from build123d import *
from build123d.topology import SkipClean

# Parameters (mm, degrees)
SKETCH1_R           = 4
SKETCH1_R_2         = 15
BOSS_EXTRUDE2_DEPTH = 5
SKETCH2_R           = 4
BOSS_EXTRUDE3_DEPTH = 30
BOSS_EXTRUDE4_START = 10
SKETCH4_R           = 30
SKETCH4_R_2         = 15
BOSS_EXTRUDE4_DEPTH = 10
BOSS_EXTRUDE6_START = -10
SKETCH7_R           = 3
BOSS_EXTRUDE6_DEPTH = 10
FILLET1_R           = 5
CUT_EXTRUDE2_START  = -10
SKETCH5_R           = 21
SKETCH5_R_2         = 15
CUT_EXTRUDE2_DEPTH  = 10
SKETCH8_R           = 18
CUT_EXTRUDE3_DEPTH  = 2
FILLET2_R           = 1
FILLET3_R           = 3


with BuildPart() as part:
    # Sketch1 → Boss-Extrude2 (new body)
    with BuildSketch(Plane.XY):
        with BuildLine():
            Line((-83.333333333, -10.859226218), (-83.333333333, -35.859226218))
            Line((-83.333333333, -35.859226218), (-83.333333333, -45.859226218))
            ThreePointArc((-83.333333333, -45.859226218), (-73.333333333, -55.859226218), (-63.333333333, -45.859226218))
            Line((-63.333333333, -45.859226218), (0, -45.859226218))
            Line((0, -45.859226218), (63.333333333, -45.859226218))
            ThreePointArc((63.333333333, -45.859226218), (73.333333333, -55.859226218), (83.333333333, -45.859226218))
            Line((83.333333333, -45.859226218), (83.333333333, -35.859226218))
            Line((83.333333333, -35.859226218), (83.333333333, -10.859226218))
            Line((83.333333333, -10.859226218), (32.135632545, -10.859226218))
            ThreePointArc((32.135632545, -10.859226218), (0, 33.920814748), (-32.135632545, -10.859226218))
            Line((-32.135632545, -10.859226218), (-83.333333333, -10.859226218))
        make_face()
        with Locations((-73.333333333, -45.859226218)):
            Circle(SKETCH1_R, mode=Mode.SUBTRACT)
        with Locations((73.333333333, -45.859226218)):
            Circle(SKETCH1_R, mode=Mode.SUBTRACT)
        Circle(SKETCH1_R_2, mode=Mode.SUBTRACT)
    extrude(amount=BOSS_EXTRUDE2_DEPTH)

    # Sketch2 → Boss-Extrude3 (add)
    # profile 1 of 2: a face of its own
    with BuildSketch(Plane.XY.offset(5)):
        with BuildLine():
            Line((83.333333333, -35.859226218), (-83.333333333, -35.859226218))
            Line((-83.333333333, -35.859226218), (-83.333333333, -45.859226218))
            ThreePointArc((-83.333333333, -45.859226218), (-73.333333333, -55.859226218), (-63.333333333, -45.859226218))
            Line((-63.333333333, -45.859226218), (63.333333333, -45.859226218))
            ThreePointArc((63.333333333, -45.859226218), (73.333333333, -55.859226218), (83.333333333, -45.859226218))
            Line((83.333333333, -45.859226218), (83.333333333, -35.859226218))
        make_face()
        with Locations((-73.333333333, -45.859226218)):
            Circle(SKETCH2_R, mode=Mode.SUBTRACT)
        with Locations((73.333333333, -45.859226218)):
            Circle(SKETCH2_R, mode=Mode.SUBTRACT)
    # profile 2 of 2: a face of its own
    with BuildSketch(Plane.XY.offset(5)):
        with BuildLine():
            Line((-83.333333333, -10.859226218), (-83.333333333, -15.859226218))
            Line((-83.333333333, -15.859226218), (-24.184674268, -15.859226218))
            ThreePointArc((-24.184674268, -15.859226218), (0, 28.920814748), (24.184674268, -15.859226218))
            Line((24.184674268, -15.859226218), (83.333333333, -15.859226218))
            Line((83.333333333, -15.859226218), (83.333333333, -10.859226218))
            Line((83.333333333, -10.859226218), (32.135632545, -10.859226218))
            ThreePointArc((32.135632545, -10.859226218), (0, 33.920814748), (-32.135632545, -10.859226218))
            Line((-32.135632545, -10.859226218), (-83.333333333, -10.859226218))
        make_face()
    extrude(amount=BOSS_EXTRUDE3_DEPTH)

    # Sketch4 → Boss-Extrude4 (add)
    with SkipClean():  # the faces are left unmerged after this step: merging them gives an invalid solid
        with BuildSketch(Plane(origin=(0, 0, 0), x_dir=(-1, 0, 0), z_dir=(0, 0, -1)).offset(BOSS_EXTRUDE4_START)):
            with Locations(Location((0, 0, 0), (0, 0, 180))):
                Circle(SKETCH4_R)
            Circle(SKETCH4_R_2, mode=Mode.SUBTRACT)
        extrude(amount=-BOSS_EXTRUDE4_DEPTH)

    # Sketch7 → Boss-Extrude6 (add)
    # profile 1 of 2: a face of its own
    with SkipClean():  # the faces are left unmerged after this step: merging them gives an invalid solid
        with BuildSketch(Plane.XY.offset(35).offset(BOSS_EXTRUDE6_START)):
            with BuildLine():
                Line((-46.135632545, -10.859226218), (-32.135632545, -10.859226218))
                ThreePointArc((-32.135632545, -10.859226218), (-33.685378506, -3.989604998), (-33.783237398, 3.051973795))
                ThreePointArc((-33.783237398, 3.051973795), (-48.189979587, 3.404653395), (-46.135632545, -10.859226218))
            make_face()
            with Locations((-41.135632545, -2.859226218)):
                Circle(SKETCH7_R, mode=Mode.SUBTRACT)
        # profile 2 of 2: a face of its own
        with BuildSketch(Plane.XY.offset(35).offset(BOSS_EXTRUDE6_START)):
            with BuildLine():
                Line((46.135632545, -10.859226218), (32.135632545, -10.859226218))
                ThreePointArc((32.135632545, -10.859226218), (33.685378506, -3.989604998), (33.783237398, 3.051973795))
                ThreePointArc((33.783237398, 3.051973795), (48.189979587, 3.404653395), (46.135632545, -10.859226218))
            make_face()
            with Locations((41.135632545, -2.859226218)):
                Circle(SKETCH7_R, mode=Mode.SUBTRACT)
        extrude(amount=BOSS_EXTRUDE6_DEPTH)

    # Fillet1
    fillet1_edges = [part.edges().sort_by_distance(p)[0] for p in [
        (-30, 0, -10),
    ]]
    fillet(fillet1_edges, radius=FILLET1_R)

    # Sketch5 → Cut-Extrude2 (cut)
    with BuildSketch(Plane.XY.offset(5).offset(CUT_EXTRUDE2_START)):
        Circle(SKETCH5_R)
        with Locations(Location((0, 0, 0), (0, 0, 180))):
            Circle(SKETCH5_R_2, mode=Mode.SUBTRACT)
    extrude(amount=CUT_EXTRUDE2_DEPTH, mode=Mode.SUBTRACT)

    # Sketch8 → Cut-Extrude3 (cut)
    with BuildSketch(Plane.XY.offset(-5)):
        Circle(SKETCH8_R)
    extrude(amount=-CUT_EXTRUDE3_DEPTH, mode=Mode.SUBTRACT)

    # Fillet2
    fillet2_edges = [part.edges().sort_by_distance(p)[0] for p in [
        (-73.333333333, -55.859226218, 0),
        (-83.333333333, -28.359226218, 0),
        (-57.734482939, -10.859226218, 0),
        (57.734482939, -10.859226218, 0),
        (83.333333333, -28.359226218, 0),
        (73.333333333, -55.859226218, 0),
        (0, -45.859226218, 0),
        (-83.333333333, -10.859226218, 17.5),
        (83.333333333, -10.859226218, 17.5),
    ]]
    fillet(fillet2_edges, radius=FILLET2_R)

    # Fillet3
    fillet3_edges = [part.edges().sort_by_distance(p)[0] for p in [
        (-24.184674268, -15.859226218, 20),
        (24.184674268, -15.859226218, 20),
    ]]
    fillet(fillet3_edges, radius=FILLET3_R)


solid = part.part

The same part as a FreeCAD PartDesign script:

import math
import FreeCAD as App
import Part
import Sketcher

V = App.Vector


def edges_at(feature, points):
    """Names of the edges that pass closest to the given points."""
    edges = feature.Shape.Edges
    near = lambda p: min(range(len(edges)), key=lambda i: edges[i].distToShape(Part.Vertex(*p))[0])
    return sorted({f"Edge{near(p) + 1}" for p in points})

doc = App.newDocument("Part")
params = doc.addObject("Spreadsheet::Sheet", "Params")
for row, (alias, value) in enumerate([
    ("sketch1_diameter", "8 mm"),
    ("sketch1_diameter2", "30 mm"),
    ("sketch1_radius", "10 mm"),
    ("sketch1_height", "35 mm"),
    ("pad1_length", "5 mm"),
    ("sketch2_diameter", "8 mm"),
    ("sketch2_radius", "10 mm"),
    ("sketch2_height", "10 mm"),
    ("sketch2_height2", "5 mm"),
    ("pad2_length", "30 mm"),
    ("sketch3_diameter", "60 mm"),
    ("sketch3_diameter2", "30 mm"),
    ("pad3_length", "10 mm"),
    ("sketch4_diameter", "6 mm"),
    ("sketch4_width", "14 mm"),
    ("pad4_length", "10 mm"),
    ("fillet_radius", "5 mm"),
    ("sketch5_diameter", "42 mm"),
    ("sketch5_diameter2", "30 mm"),
    ("pocket1_length", "10 mm"),
    ("sketch6_diameter", "36 mm"),
    ("pocket2_length", "2 mm"),
    ("fillet2_radius", "1 mm"),
    ("fillet3_radius", "3 mm"),
], start=1):
    params.set(f"A{row}", alias)
    params.set(f"B{row}", "=" + value)
    params.setAlias(f"B{row}", alias)

body = doc.addObject("PartDesign::Body", "Body")

# Sketch on XY plane
sketch1 = doc.addObject("Sketcher::SketchObject", "Sketch")
body.addObject(sketch1)
sketch1.AttachmentSupport = (doc.XY_Plane, [""])
sketch1.MapMode = "FlatFace"
sketch1.addGeometry([
    Part.LineSegment(V(-83.3, -10.9, 0), V(-83.3, -45.9, 0)),  # 0
    Part.ArcOfCircle(Part.Circle(V(-73.3, -45.9, 0), V(0, 0, 1), 10), math.radians(180), math.radians(360)),  # 1
    Part.LineSegment(V(-63.3, -45.9, 0), V(63.3, -45.9, 0)),  # 2
    Part.ArcOfCircle(Part.Circle(V(73.3, -45.9, 0), V(0, 0, 1), 10), math.radians(180), math.radians(360)),  # 3
    Part.LineSegment(V(83.3, -45.9, 0), V(83.3, -10.9, 0)),  # 4
    Part.LineSegment(V(83.3, -10.9, 0), V(32.1, -10.9, 0)),  # 5
    Part.ArcOfCircle(Part.Circle(V(0, 0, 0), V(0, 0, 1), 33.9), math.radians(-19), math.radians(199)),  # 6
    Part.LineSegment(V(-32.1, -10.9, 0), V(-83.3, -10.9, 0)),  # 7
    Part.Circle(V(-73.3, -45.9, 0), V(0, 0, 1), 4),  # 8
    Part.Circle(V(73.3, -45.9, 0), V(0, 0, 1), 4),  # 9
    Part.Circle(V(0, 0, 0), V(0, 0, 1), 15),  # 10
], False)
sketch1.addConstraint([
    Sketcher.Constraint("Tangent", 0, 2, 1, 1),
    Sketcher.Constraint("Coincident", 1, 2, 2, 1),
    Sketcher.Constraint("Coincident", 2, 2, 3, 1),
    Sketcher.Constraint("Tangent", 3, 2, 4, 1),
    Sketcher.Constraint("Coincident", 4, 2, 5, 1),
    Sketcher.Constraint("Coincident", 5, 2, 6, 1),
    Sketcher.Constraint("Coincident", 6, 2, 7, 1),
    Sketcher.Constraint("Coincident", 7, 2, 0, 1),
    Sketcher.Constraint("Vertical", 0),
    Sketcher.Constraint("Horizontal", 2),
    Sketcher.Constraint("Vertical", 4),
    Sketcher.Constraint("Horizontal", 5),
    Sketcher.Constraint("Horizontal", 7),
    Sketcher.Constraint("Coincident", 6, 3, -1, 1),
    Sketcher.Constraint("Coincident", 10, 3, -1, 1),
    Sketcher.Constraint("Coincident", 8, 3, 1, 3),
    Sketcher.Constraint("Coincident", 9, 3, 3, 3),
    Sketcher.Constraint("Equal", 1, 3),
    Sketcher.Constraint("Equal", 8, 9),
    Sketcher.Constraint("Symmetric", 1, 3, 3, 3, -2),
    Sketcher.Constraint("Horizontal", 0, 2, 1, 2),
    Sketcher.Constraint("Horizontal", 5, 2, 6, 2),
    Sketcher.Constraint("Diameter", 8, 8.0),
    Sketcher.Constraint("Diameter", 10, 30.0),
    Sketcher.Constraint("Radius", 1, 10.0),
    Sketcher.Constraint("DistanceY", 0, 2, 0, 1, 35.0),
    Sketcher.Constraint("DistanceX", 5, 2, 5, 1, 51.197701),
    Sketcher.Constraint("Radius", 6, 33.920815),
    Sketcher.Constraint("DistanceX", 2, 1, 2, 2, 126.666667),
])
sketch1.setExpression("Constraints[22]", "Params.sketch1_diameter")
sketch1.setExpression("Constraints[23]", "Params.sketch1_diameter2")
sketch1.setExpression("Constraints[24]", "Params.sketch1_radius")
sketch1.setExpression("Constraints[25]", "Params.sketch1_height")
pad1 = doc.addObject("PartDesign::Pad", "Pad")
body.addObject(pad1)
pad1.Profile = sketch1
pad1.setExpression("Length", "Params.pad1_length")

# Sketch on XY plane
sketch2 = doc.addObject("Sketcher::SketchObject", "Sketch001")
body.addObject(sketch2)
sketch2.AttachmentSupport = (doc.XY_Plane, [""])
sketch2.MapMode = "FlatFace"
sketch2.AttachmentOffset = App.Placement(V(0, 0, 5), App.Rotation())
sketch2.addGeometry([
    Part.LineSegment(V(83.3, -35.9, 0), V(-83.3, -35.9, 0)),  # 0
    Part.LineSegment(V(-83.3, -35.9, 0), V(-83.3, -45.9, 0)),  # 1
    Part.ArcOfCircle(Part.Circle(V(-73.3, -45.9, 0), V(0, 0, 1), 10), math.radians(180), math.radians(360)),  # 2
    Part.LineSegment(V(-63.3, -45.9, 0), V(63.3, -45.9, 0)),  # 3
    Part.ArcOfCircle(Part.Circle(V(73.3, -45.9, 0), V(0, 0, 1), 10), math.radians(180), math.radians(360)),  # 4
    Part.LineSegment(V(83.3, -45.9, 0), V(83.3, -35.9, 0)),  # 5
    Part.Circle(V(-73.3, -45.9, 0), V(0, 0, 1), 4),  # 6
    Part.Circle(V(73.3, -45.9, 0), V(0, 0, 1), 4),  # 7
    Part.LineSegment(V(-83.3, -10.9, 0), V(-83.3, -15.9, 0)),  # 8
    Part.LineSegment(V(-83.3, -15.9, 0), V(-24.2, -15.9, 0)),  # 9
    Part.ArcOfCircle(Part.Circle(V(0, 0, 0), V(0, 0, 1), 28.9), math.radians(-33), math.radians(213)),  # 10
    Part.LineSegment(V(24.2, -15.9, 0), V(83.3, -15.9, 0)),  # 11
    Part.LineSegment(V(83.3, -15.9, 0), V(83.3, -10.9, 0)),  # 12
    Part.LineSegment(V(83.3, -10.9, 0), V(32.1, -10.9, 0)),  # 13
    Part.ArcOfCircle(Part.Circle(V(0, 0, 0), V(0, 0, 1), 33.9), math.radians(-19), math.radians(199)),  # 14
    Part.LineSegment(V(-32.1, -10.9, 0), V(-83.3, -10.9, 0)),  # 15
], False)
sketch2.addConstraint([
    Sketcher.Constraint("Coincident", 0, 2, 1, 1),
    Sketcher.Constraint("Tangent", 1, 2, 2, 1),
    Sketcher.Constraint("Coincident", 2, 2, 3, 1),
    Sketcher.Constraint("Coincident", 3, 2, 4, 1),
    Sketcher.Constraint("Tangent", 4, 2, 5, 1),
    Sketcher.Constraint("Coincident", 5, 2, 0, 1),
    Sketcher.Constraint("Coincident", 8, 2, 9, 1),
    Sketcher.Constraint("Coincident", 9, 2, 10, 2),
    Sketcher.Constraint("Coincident", 10, 1, 11, 1),
    Sketcher.Constraint("Coincident", 11, 2, 12, 1),
    Sketcher.Constraint("Coincident", 12, 2, 13, 1),
    Sketcher.Constraint("Coincident", 13, 2, 14, 1),
    Sketcher.Constraint("Coincident", 14, 2, 15, 1),
    Sketcher.Constraint("Coincident", 15, 2, 8, 1),
    Sketcher.Constraint("Horizontal", 0),
    Sketcher.Constraint("Vertical", 1),
    Sketcher.Constraint("Horizontal", 3),
    Sketcher.Constraint("Vertical", 5),
    Sketcher.Constraint("Vertical", 8),
    Sketcher.Constraint("Horizontal", 9),
    Sketcher.Constraint("Horizontal", 11),
    Sketcher.Constraint("Vertical", 12),
    Sketcher.Constraint("Horizontal", 13),
    Sketcher.Constraint("Horizontal", 15),
    Sketcher.Constraint("Coincident", 10, 3, -1, 1),
    Sketcher.Constraint("Coincident", 14, 3, -1, 1),
    Sketcher.Constraint("Coincident", 6, 3, 2, 3),
    Sketcher.Constraint("Coincident", 7, 3, 4, 3),
    Sketcher.Constraint("Equal", 2, 4),
    Sketcher.Constraint("Equal", 6, 7),
    Sketcher.Constraint("Symmetric", 2, 3, 4, 3, -2),
    Sketcher.Constraint("Symmetric", 8, 2, 11, 2, -2),
    Sketcher.Constraint("Horizontal", 1, 2, 2, 2),
    Sketcher.Constraint("Horizontal", 13, 2, 14, 2),
    Sketcher.Constraint("Vertical", 1, 2, 8, 2),
    Sketcher.Constraint("Diameter", 6, 8.0),
    Sketcher.Constraint("Radius", 2, 10.0),
    Sketcher.Constraint("DistanceY", 1, 2, 1, 1, 10.0),
    Sketcher.Constraint("DistanceY", 8, 2, 8, 1, 5.0),
    Sketcher.Constraint("DistanceY", 0, 2, 8, 2, 20.0),
    Sketcher.Constraint("DistanceX", 13, 2, 13, 1, 51.197701),
    Sketcher.Constraint("Radius", 10, 28.920815),
    Sketcher.Constraint("Radius", 14, 33.920815),
    Sketcher.Constraint("DistanceX", 9, 1, 9, 2, 59.148659),
])
sketch2.setExpression("Constraints[35]", "Params.sketch2_diameter")
sketch2.setExpression("Constraints[36]", "Params.sketch2_radius")
sketch2.setExpression("Constraints[37]", "Params.sketch2_height")
sketch2.setExpression("Constraints[38]", "Params.sketch2_height2")
pad2 = doc.addObject("PartDesign::Pad", "Pad001")
body.addObject(pad2)
pad2.Profile = sketch2
pad2.setExpression("Length", "Params.pad2_length")

# Sketch on XY plane
sketch3 = doc.addObject("Sketcher::SketchObject", "Sketch002")
body.addObject(sketch3)
sketch3.AttachmentSupport = (doc.XY_Plane, [""])
sketch3.MapMode = "FlatFace"
sketch3.AttachmentOffset = App.Placement(V(0, 0, -10), App.Rotation())
sketch3.addGeometry([
    Part.Circle(V(0, 0, 0), V(0, 0, 1), 30),
    Part.Circle(V(0, 0, 0), V(0, 0, 1), 15),
], False)
sketch3.addConstraint([
    Sketcher.Constraint("Coincident", 0, 3, -1, 1),
    Sketcher.Constraint("Coincident", 1, 3, -1, 1),
    Sketcher.Constraint("Diameter", 0, 60.0),
    Sketcher.Constraint("Diameter", 1, 30.0),
])
sketch3.setExpression("Constraints[2]", "Params.sketch3_diameter")
sketch3.setExpression("Constraints[3]", "Params.sketch3_diameter2")
pad3 = doc.addObject("PartDesign::Pad", "Pad002")
body.addObject(pad3)
pad3.Profile = sketch3
pad3.setExpression("Length", "Params.pad3_length")

# Sketch on XY plane
sketch4 = doc.addObject("Sketcher::SketchObject", "Sketch003")
body.addObject(sketch4)
sketch4.AttachmentSupport = (doc.XY_Plane, [""])
sketch4.MapMode = "FlatFace"
sketch4.AttachmentOffset = App.Placement(V(0, 0, 25), App.Rotation())
sketch4.addGeometry([
    Part.LineSegment(V(-46.1, -10.9, 0), V(-32.1, -10.9, 0)),  # 0
    Part.ArcOfCircle(Part.Circle(V(0, 0, 0), V(0, 0, 1), 33.9), math.radians(175), math.radians(199)),  # 1
    Part.ArcOfCircle(Part.Circle(V(-41.1, -2.9, 0), V(0, 0, 1), 9.4), math.radians(39), math.radians(238)),  # 2
    Part.Circle(V(-41.1, -2.9, 0), V(0, 0, 1), 3),  # 3
    Part.LineSegment(V(32.1, -10.9, 0), V(46.1, -10.9, 0)),  # 4
    Part.ArcOfCircle(Part.Circle(V(41.1, -2.9, 0), V(0, 0, 1), 9.4), math.radians(-58), math.radians(141)),  # 5
    Part.ArcOfCircle(Part.Circle(V(0, 0, 0), V(0, 0, 1), 33.9), math.radians(-19), math.radians(5)),  # 6
    Part.Circle(V(41.1, -2.9, 0), V(0, 0, 1), 3),  # 7
], False)
sketch4.addConstraint([
    Sketcher.Constraint("Coincident", 0, 2, 1, 2),
    Sketcher.Constraint("Coincident", 1, 1, 2, 1),
    Sketcher.Constraint("Coincident", 2, 2, 0, 1),
    Sketcher.Constraint("Coincident", 4, 2, 5, 1),
    Sketcher.Constraint("Coincident", 5, 2, 6, 2),
    Sketcher.Constraint("Coincident", 6, 1, 4, 1),
    Sketcher.Constraint("Horizontal", 0),
    Sketcher.Constraint("Horizontal", 4),
    Sketcher.Constraint("Coincident", 1, 3, -1, 1),
    Sketcher.Constraint("Coincident", 6, 3, -1, 1),
    Sketcher.Constraint("Coincident", 3, 3, 2, 3),
    Sketcher.Constraint("Coincident", 7, 3, 5, 3),
    Sketcher.Constraint("Equal", 2, 5),
    Sketcher.Constraint("Equal", 1, 6),
    Sketcher.Constraint("Equal", 3, 7),
    Sketcher.Constraint("Symmetric", 2, 3, 5, 3, -2),
    Sketcher.Constraint("Horizontal", 2, 2, 4, 2),
    Sketcher.Constraint("Diameter", 3, 6.0),
    Sketcher.Constraint("DistanceX", 0, 1, 0, 2, 14.0),
    Sketcher.Constraint("DistanceX", 2, 3, 0, 2, 9.0),
    Sketcher.Constraint("DistanceY", 0, 2, 2, 3, 8.0),
    Sketcher.Constraint("Radius", 1, 33.920815),
    Sketcher.Constraint("DistanceY", 2, 3, 1, 1, 5.9112),
])
sketch4.setExpression("Constraints[17]", "Params.sketch4_diameter")
sketch4.setExpression("Constraints[18]", "Params.sketch4_width")
pad4 = doc.addObject("PartDesign::Pad", "Pad003")
body.addObject(pad4)
pad4.Profile = sketch4
pad4.setExpression("Length", "Params.pad4_length")
doc.recompute()

fillet = doc.addObject("PartDesign::Fillet", "Fillet")
body.addObject(fillet)
fillet.Base = (pad4, edges_at(pad4, [(-30, 0, -10)]))
fillet.setExpression("Radius", "Params.fillet_radius")

# Sketch on XY plane
sketch5 = doc.addObject("Sketcher::SketchObject", "Sketch004")
body.addObject(sketch5)
sketch5.AttachmentSupport = (doc.XY_Plane, [""])
sketch5.MapMode = "FlatFace"
sketch5.AttachmentOffset = App.Placement(V(0, 0, -5), App.Rotation())
sketch5.addGeometry([
    Part.Circle(V(0, 0, 0), V(0, 0, 1), 21),
    Part.Circle(V(0, 0, 0), V(0, 0, 1), 15),
], False)
sketch5.addConstraint([
    Sketcher.Constraint("Coincident", 0, 3, -1, 1),
    Sketcher.Constraint("Coincident", 1, 3, -1, 1),
    Sketcher.Constraint("Diameter", 0, 42.0),
    Sketcher.Constraint("Diameter", 1, 30.0),
])
sketch5.setExpression("Constraints[2]", "Params.sketch5_diameter")
sketch5.setExpression("Constraints[3]", "Params.sketch5_diameter2")
pocket1 = doc.addObject("PartDesign::Pocket", "Pocket")
body.addObject(pocket1)
pocket1.Profile = sketch5
pocket1.setExpression("Length", "Params.pocket1_length")
pocket1.Reversed = True

# Sketch on XY plane
sketch6 = doc.addObject("Sketcher::SketchObject", "Sketch005")
body.addObject(sketch6)
sketch6.AttachmentSupport = (doc.XY_Plane, [""])
sketch6.MapMode = "FlatFace"
sketch6.AttachmentOffset = App.Placement(V(0, 0, -5), App.Rotation())
sketch6.addGeometry(Part.Circle(V(0, 0, 0), V(0, 0, 1), 18), False)
sketch6.addConstraint([
    Sketcher.Constraint("Coincident", 0, 3, -1, 1),
    Sketcher.Constraint("Diameter", 0, 36.0),
])
sketch6.setExpression("Constraints[1]", "Params.sketch6_diameter")
pocket2 = doc.addObject("PartDesign::Pocket", "Pocket001")
body.addObject(pocket2)
pocket2.Profile = sketch6
pocket2.setExpression("Length", "Params.pocket2_length")
doc.recompute()

fillet2 = doc.addObject("PartDesign::Fillet", "Fillet001")
body.addObject(fillet2)
fillet2.Base = (pocket2, edges_at(pocket2, [
    (-73.333, -55.859, 0),
    (-83.333, -28.359, 0),
    (-57.734, -10.859, 0),
    (57.734, -10.859, 0),
    (83.333, -28.359, 0),
    (73.333, -55.859, 0),
    (0, -45.859, 0),
    (-83.333, -10.859, 17.5),
    (83.333, -10.859, 17.5),
]))
fillet2.setExpression("Radius", "Params.fillet2_radius")
doc.recompute()

fillet3 = doc.addObject("PartDesign::Fillet", "Fillet002")
body.addObject(fillet3)
fillet3.Base = (fillet2, edges_at(fillet2, [(-24.185, -15.859, 20), (24.185, -15.859, 20)]))
fillet3.setExpression("Radius", "Params.fillet3_radius")

doc.recompute()
